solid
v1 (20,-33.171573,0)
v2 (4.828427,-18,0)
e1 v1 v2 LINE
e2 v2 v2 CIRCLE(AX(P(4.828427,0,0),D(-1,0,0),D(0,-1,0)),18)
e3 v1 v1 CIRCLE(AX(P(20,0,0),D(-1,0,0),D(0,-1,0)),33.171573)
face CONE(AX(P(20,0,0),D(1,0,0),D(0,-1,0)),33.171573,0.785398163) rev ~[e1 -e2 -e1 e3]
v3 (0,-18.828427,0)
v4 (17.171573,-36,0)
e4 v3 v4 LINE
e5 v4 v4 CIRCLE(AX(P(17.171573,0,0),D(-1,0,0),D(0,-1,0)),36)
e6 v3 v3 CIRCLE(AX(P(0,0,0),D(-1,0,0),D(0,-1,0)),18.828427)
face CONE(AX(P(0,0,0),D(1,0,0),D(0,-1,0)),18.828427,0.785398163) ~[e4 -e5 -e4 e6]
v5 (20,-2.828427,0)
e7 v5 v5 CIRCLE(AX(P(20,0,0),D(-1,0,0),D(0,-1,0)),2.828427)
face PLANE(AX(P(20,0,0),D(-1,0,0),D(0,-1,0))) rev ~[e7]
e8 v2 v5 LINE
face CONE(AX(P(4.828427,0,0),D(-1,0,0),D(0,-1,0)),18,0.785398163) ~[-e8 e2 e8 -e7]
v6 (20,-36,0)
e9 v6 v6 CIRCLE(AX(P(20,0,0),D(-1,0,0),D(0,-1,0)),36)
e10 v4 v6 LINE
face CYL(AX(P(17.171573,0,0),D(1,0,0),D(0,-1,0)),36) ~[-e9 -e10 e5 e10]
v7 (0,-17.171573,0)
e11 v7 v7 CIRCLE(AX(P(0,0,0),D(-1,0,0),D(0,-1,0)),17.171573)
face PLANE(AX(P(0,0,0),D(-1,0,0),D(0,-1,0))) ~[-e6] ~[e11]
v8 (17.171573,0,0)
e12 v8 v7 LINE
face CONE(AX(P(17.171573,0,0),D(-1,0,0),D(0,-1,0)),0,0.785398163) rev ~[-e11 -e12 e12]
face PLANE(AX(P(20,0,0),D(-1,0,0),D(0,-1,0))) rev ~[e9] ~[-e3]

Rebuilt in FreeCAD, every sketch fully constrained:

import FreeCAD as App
import Part
import Sketcher

V = App.Vector
Q = App.Units.Quantity


def add_polygon(sketch, points):
    """Adds a closed chain of lines whose ends are joined by coincident constraints."""
    first, n = sketch.GeometryCount, len(points)
    for a, b in zip(points, points[1:] + points[:1]):
        sketch.addGeometry(Part.LineSegment(App.Vector(*a, 0), App.Vector(*b, 0)), False)
    for i in range(n):
        sketch.addConstraint(Sketcher.Constraint("Coincident", first + i, 2, first + (i + 1) % n, 1))

doc = App.newDocument("Part")
body = doc.addObject("PartDesign::Body", "Body")

sketch1 = body.newObject("Sketcher::SketchObject", "Sketch")
sketch1.AttachmentSupport = (doc.getObject("XY_Plane"), [""])
sketch1.MapMode = "FlatFace"
add_polygon(sketch1, [(20, 0), (17.2, 0), (0, -17.2), (0, -18.8), (17.2, -36), (20, -36), (20, -33.2), (4.8, -18), (20, -2.8)])
sketch1.addConstraint([
    Sketcher.Constraint("Horizontal", 0),
    Sketcher.Constraint("Vertical", 2),
    Sketcher.Constraint("Horizontal", 4),
    Sketcher.Constraint("Vertical", 5),
    Sketcher.Constraint("Vertical", 8),
    Sketcher.Constraint("PointOnObject", 0, 2, -1),
    Sketcher.Constraint("PointOnObject", 1, 2, -2),
    Sketcher.Constraint("Perpendicular", 1, 3),
    Sketcher.Constraint("Parallel", 3, 6),
    Sketcher.Constraint("Perpendicular", 6, 7),
    Sketcher.Constraint("Vertical", 0, 2, 3, 2),
    Sketcher.Constraint("Vertical", 5, 2, 7, 2),
    Sketcher.Constraint("Equal", 4, 5),
    Sketcher.Constraint("Equal", 5, 8),
    Sketcher.Constraint("Equal", 1, 3),
    Sketcher.Constraint("DistanceY", 3, 2, -1, 1, Q("36 mm")),
    Sketcher.Constraint("DistanceX", -1, 1, 4, 2, Q("20 mm")),
    Sketcher.Constraint("Distance", 1, Q("24.284271 mm")),
])
revolution = body.newObject("PartDesign::Revolution", "Revolution")
revolution.Profile = sketch1
revolution.ReferenceAxis = (sketch1, ["H_Axis"])
revolution.Angle = 360

doc.recompute()
